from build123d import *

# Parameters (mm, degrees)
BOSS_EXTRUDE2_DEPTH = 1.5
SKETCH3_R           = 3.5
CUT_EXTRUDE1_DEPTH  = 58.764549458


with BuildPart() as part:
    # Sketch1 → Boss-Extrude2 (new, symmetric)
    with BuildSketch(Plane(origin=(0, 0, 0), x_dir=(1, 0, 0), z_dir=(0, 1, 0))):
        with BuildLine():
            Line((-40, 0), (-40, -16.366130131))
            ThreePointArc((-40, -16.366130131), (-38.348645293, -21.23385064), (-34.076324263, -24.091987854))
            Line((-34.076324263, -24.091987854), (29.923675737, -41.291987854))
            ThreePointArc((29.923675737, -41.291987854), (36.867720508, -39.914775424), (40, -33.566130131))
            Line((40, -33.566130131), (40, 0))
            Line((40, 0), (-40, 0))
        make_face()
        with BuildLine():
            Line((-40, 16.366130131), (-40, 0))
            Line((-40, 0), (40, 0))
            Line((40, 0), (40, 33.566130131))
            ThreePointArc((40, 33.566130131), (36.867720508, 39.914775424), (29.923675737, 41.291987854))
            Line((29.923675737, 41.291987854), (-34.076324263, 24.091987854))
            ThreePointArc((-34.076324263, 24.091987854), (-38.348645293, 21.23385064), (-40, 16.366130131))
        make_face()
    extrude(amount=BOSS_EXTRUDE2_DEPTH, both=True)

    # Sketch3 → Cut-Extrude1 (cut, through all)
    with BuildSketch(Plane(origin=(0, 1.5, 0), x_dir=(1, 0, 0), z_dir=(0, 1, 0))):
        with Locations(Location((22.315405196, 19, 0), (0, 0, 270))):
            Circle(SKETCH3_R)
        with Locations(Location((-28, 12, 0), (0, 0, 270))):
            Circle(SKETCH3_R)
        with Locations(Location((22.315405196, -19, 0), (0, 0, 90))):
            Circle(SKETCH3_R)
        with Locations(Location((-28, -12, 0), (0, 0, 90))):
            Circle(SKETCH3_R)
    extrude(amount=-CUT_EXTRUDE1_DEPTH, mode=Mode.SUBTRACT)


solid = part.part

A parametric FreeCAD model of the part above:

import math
import FreeCAD as App
import Part
import Sketcher

V = App.Vector
Q = App.Units.Quantity

doc = App.newDocument("Part")
body = doc.addObject("PartDesign::Body", "Body")

# Sketch on XZ plane
sketch1 = body.newObject("Sketcher::SketchObject", "Sketch")
sketch1.AttachmentSupport = (doc.getObject("XZ_Plane"), [""])
sketch1.MapMode = "FlatFace"
sketch1.addGeometry(Part.ArcOfCircle(Part.Circle(V(-32, 16, 0), V(0, 0, 1), 8), math.radians(105), math.radians(180)), False)
sketch1.addGeometry(Part.LineSegment(V(-34, 24, 0), V(30, 41, 0)), False)
sketch1.addGeometry(Part.ArcOfCircle(Part.Circle(V(32, 34, 0), V(0, 0, 1), 8), math.radians(0), math.radians(105)), False)
sketch1.addGeometry(Part.LineSegment(V(40, 34, 0), V(40, -34, 0)), False)
sketch1.addGeometry(Part.ArcOfCircle(Part.Circle(V(32, -34, 0), V(0, 0, 1), 8), math.radians(-105), math.radians(0)), False)
sketch1.addGeometry(Part.LineSegment(V(30, -41, 0), V(-34, -24, 0)), False)
sketch1.addGeometry(Part.ArcOfCircle(Part.Circle(V(-32, -16, 0), V(0, 0, 1), 8), math.radians(180), math.radians(255)), False)
sketch1.addGeometry(Part.LineSegment(V(-40, -16, 0), V(-40, 16, 0)), False)
sketch1.addConstraint(Sketcher.Constraint("Tangent", 0, 1, 1, 1))
sketch1.addConstraint(Sketcher.Constraint("Tangent", 1, 2, 2, 2))
sketch1.addConstraint(Sketcher.Constraint("Tangent", 2, 1, 3, 1))
sketch1.addConstraint(Sketcher.Constraint("Tangent", 3, 2, 4, 2))
sketch1.addConstraint(Sketcher.Constraint("Tangent", 4, 1, 5, 1))
sketch1.addConstraint(Sketcher.Constraint("Tangent", 5, 2, 6, 2))
sketch1.addConstraint(Sketcher.Constraint("Tangent", 6, 1, 7, 1))
sketch1.addConstraint(Sketcher.Constraint("Tangent", 7, 2, 0, 2))
sketch1.addConstraint(Sketcher.Constraint("Vertical", 3))
sketch1.addConstraint(Sketcher.Constraint("Vertical", 7))
sketch1.addConstraint(Sketcher.Constraint("Equal", 0, 2))
sketch1.addConstraint(Sketcher.Constraint("Equal", 2, 4))
sketch1.addConstraint(Sketcher.Constraint("Equal", 4, 6))
sketch1.addConstraint(Sketcher.Constraint("Symmetric", 1, 2, 4, 1, -1))
sketch1.addConstraint(Sketcher.Constraint("Radius", 0, Q("8 mm")))
sketch1.addConstraint(Sketcher.Constraint("DistanceX", 0, 3, -1, 1, Q("32 mm")))
sketch1.addConstraint(Sketcher.Constraint("DistanceX", -1, 1, 2, 3, Q("32 mm")))
sketch1.addConstraint(Sketcher.Constraint("DistanceY", 0, 3, 2, 3, Q("17.2 mm")))
sketch1.addConstraint(Sketcher.Constraint("DistanceY", 3, 2, 3, 1, Q("67.13226 mm")))
pad1 = body.newObject("PartDesign::Pad", "Pad")
pad1.Profile = sketch1
pad1.Length = 3
pad1.Midplane = True

# Sketch on XZ plane
sketch2 = body.newObject("Sketcher::SketchObject", "Sketch001")
sketch2.AttachmentSupport = (doc.getObject("XZ_Plane"), [""])
sketch2.MapMode = "FlatFace"
sketch2.AttachmentOffset = App.Placement(V(0, 0, -1.5), App.Rotation())
sketch2.addGeometry(Part.Circle(V(22.3, -19, 0), V(0, 0, 1), 3.5), False)
sketch2.addGeometry(Part.Circle(V(-28, -12, 0), V(0, 0, 1), 3.5), False)
sketch2.addGeometry(Part.Circle(V(22.3, 19, 0), V(0, 0, 1), 3.5), False)
sketch2.addGeometry(Part.Circle(V(-28, 12, 0), V(0, 0, 1), 3.5), False)
sketch2.addConstraint(Sketcher.Constraint("Equal", 0, 1))
sketch2.addConstraint(Sketcher.Constraint("Equal", 1, 2))
sketch2.addConstraint(Sketcher.Constraint("Equal", 2, 3))
sketch2.addConstraint(Sketcher.Constraint("Symmetric", 0, 3, 2, 3, -1))
sketch2.addConstraint(Sketcher.Constraint("Symmetric", 1, 3, 3, 3, -1))
sketch2.addConstraint(Sketcher.Constraint("Diameter", 0, Q("7 mm")))
sketch2.addConstraint(Sketcher.Constraint("DistanceY", 0, 3, -1, 1, Q("19 mm")))
sketch2.addConstraint(Sketcher.Constraint("DistanceX", 1, 3, -1, 1, Q("28 mm")))
sketch2.addConstraint(Sketcher.Constraint("DistanceY", 1, 3, -1, 1, Q("12 mm")))
sketch2.addConstraint(Sketcher.Constraint("DistanceX", -1, 1, 0, 3, Q("22.315405 mm")))
pocket1 = body.newObject("PartDesign::Pocket", "Pocket")
pocket1.Profile = sketch2
pocket1.Type = "ThroughAll"
pocket1.Reversed = True

doc.recompute()
